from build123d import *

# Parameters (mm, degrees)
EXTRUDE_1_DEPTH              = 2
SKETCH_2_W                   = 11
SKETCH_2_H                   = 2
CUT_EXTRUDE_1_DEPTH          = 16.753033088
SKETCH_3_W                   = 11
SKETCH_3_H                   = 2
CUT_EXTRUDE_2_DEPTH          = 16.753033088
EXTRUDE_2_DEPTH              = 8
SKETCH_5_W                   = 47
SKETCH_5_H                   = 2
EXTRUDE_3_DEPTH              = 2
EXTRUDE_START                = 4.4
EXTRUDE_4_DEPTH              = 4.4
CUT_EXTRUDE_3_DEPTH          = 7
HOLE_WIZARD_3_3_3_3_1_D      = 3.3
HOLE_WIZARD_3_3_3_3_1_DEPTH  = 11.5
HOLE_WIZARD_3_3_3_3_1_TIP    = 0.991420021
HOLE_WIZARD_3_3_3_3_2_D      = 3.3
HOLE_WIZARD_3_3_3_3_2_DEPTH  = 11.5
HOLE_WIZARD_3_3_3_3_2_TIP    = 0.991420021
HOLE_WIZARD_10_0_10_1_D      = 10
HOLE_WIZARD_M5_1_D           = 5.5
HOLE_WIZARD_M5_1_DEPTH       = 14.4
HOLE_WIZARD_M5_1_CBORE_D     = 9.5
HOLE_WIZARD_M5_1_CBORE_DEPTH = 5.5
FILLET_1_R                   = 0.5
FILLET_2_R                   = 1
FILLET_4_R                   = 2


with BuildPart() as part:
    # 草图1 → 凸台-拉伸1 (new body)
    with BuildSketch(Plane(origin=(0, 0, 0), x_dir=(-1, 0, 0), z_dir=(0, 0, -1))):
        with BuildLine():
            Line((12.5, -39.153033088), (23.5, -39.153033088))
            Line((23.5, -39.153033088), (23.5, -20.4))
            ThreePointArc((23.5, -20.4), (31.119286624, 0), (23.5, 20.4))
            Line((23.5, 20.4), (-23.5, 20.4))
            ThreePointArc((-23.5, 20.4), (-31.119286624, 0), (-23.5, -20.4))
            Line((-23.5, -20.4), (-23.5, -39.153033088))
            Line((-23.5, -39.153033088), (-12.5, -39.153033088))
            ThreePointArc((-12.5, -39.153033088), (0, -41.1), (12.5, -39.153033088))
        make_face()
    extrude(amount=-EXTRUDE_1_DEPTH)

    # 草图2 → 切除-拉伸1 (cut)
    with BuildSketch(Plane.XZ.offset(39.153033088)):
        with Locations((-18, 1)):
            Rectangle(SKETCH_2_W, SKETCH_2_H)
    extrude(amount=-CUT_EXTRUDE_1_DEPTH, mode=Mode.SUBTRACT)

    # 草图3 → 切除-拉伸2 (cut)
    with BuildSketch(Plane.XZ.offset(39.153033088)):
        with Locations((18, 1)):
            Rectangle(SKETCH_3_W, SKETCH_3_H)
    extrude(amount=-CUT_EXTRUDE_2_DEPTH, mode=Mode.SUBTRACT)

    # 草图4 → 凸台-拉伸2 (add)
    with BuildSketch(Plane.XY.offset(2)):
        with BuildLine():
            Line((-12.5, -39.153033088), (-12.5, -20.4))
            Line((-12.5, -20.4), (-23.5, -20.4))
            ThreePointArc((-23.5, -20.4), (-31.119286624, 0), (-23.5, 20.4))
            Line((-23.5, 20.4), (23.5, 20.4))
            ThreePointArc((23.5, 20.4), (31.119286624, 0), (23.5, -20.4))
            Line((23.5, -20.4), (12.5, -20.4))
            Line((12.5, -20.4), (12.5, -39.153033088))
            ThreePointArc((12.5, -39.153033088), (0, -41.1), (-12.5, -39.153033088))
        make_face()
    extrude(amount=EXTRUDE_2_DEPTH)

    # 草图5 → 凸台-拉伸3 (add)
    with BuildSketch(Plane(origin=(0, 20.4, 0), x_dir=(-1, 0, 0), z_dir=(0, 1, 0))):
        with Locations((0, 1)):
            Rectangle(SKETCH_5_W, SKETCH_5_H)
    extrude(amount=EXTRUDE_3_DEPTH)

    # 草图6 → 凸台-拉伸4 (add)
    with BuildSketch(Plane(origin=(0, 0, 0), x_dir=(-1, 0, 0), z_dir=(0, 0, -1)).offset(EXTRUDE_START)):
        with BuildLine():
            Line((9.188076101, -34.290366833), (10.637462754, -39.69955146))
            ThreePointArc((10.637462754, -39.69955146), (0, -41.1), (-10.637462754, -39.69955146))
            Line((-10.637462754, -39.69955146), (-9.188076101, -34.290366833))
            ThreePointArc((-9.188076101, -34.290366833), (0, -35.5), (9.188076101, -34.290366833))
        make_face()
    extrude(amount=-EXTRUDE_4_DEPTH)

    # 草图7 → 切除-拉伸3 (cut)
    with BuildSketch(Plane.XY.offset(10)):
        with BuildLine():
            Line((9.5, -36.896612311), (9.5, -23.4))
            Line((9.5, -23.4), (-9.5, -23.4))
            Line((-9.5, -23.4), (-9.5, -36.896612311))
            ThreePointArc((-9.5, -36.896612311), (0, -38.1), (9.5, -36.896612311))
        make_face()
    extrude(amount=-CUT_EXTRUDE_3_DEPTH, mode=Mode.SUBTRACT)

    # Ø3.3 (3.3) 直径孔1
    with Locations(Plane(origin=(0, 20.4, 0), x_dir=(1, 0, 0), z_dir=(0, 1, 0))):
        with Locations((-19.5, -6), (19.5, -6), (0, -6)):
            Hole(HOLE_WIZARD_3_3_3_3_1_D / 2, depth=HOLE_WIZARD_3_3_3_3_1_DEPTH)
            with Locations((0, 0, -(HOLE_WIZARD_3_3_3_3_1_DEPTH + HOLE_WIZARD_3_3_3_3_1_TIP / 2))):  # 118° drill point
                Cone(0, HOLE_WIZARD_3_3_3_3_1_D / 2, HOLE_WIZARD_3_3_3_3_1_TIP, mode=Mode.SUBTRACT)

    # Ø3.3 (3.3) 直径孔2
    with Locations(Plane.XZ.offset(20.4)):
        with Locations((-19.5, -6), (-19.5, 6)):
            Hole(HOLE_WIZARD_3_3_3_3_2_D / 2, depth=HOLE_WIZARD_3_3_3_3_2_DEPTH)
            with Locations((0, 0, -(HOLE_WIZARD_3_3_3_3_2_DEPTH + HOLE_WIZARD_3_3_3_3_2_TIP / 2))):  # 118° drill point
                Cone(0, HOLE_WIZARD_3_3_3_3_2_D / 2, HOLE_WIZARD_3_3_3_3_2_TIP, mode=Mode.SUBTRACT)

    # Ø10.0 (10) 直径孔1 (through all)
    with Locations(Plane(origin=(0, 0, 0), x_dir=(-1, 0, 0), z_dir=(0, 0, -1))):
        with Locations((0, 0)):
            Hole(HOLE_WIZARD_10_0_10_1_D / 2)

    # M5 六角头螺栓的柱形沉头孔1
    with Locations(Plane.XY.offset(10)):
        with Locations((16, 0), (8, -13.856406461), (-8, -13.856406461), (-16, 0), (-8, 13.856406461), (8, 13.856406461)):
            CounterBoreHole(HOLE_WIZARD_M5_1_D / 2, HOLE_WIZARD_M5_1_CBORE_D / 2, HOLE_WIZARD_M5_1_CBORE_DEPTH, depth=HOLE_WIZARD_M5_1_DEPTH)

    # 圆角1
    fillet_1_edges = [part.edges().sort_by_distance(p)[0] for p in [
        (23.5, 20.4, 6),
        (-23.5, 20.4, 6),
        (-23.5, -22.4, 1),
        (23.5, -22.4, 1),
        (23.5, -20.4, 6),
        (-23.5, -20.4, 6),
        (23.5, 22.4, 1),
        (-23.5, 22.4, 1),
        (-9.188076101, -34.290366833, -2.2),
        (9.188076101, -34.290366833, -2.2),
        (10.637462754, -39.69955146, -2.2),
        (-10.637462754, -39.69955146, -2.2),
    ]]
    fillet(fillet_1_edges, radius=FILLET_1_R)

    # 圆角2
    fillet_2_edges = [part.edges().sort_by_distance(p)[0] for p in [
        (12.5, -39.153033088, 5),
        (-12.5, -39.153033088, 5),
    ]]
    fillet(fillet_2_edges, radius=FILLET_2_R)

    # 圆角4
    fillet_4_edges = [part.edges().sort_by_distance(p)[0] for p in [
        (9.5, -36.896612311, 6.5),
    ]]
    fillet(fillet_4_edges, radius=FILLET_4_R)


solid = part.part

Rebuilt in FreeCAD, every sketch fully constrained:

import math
import FreeCAD as App
import Part
import Sketcher
Q = App.Units.Quantity


def edges_at(feature, points):
    """Names of the edges that pass closest to the given points."""
    edges = feature.Shape.Edges
    near = lambda p: min(range(len(edges)), key=lambda i: edges[i].distToShape(Part.Vertex(*p))[0])
    return sorted({f"Edge{near(p) + 1}" for p in points})


def add_polygon(sketch, points):
    """Adds a closed chain of lines whose ends are joined by coincident constraints."""
    first, n = sketch.GeometryCount, len(points)
    for a, b in zip(points, points[1:] + points[:1]):
        sketch.addGeometry(Part.LineSegment(App.Vector(*a, 0), App.Vector(*b, 0)), False)
    for i in range(n):
        sketch.addConstraint(Sketcher.Constraint("Coincident", first + i, 2, first + (i + 1) % n, 1))

doc = App.newDocument("Part")
body = doc.addObject("PartDesign::Body", "Body")

# Sketch on XY plane
sketch1 = body.newObject("Sketcher::SketchObject", "Sketch")
sketch1.AttachmentSupport = (doc.getObject("XY_Plane"), [""])
sketch1.MapMode = "FlatFace"
sketch1.addGeometry(Part.LineSegment(App.Vector(-12.5, -39.153033, 0), App.Vector(-23.5, -39.153033, 0)), False)
sketch1.addGeometry(Part.LineSegment(App.Vector(-23.5, -39.153033, 0), App.Vector(-23.5, -20.4, 0)), False)
sketch1.addGeometry(Part.ArcOfCircle(Part.Circle(App.Vector(0, 0, 0), App.Vector(0, 0, 1), 31.119287), math.radians(139.039238), math.radians(220.960762)), False)
sketch1.addGeometry(Part.LineSegment(App.Vector(-23.5, 20.4, 0), App.Vector(23.5, 20.4, 0)), False)
sketch1.addGeometry(Part.ArcOfCircle(Part.Circle(App.Vector(0, 0, 0), App.Vector(0, 0, 1), 31.119287), math.radians(-40.960762), math.radians(40.960762)), False)
sketch1.addGeometry(Part.LineSegment(App.Vector(23.5, -20.4, 0), App.Vector(23.5, -39.153033, 0)), False)
sketch1.addGeometry(Part.LineSegment(App.Vector(23.5, -39.153033, 0), App.Vector(12.5, -39.153033, 0)), False)
sketch1.addGeometry(Part.ArcOfCircle(Part.Circle(App.Vector(0, 0, 0), App.Vector(0, 0, 1), 41.1), math.radians(-107.706206), math.radians(-72.293794)), False)
sketch1.addConstraint(Sketcher.Constraint("Coincident", 0, 2, 1, 1))
sketch1.addConstraint(Sketcher.Constraint("Coincident", 1, 2, 2, 2))
sketch1.addConstraint(Sketcher.Constraint("Coincident", 2, 1, 3, 1))
sketch1.addConstraint(Sketcher.Constraint("Coincident", 3, 2, 4, 2))
sketch1.addConstraint(Sketcher.Constraint("Coincident", 4, 1, 5, 1))
sketch1.addConstraint(Sketcher.Constraint("Coincident", 5, 2, 6, 1))
sketch1.addConstraint(Sketcher.Constraint("Coincident", 6, 2, 7, 2))
sketch1.addConstraint(Sketcher.Constraint("Coincident", 7, 1, 0, 1))
sketch1.addConstraint(Sketcher.Constraint("Horizontal", 0))
sketch1.addConstraint(Sketcher.Constraint("Vertical", 1))
sketch1.addConstraint(Sketcher.Constraint("Horizontal", 3))
sketch1.addConstraint(Sketcher.Constraint("Vertical", 5))
sketch1.addConstraint(Sketcher.Constraint("Horizontal", 6))
sketch1.addConstraint(Sketcher.Constraint("Coincident", 2, 3, -1, 1))
sketch1.addConstraint(Sketcher.Constraint("Coincident", 4, 3, -1, 1))
sketch1.addConstraint(Sketcher.Constraint("Coincident", 7, 3, -1, 1))
sketch1.addConstraint(Sketcher.Constraint("Equal", 2, 4))
sketch1.addConstraint(Sketcher.Constraint("Symmetric", 0, 2, 5, 2, -2))
sketch1.addConstraint(Sketcher.Constraint("Vertical", 1, 2, 2, 1))
sketch1.addConstraint(Sketcher.Constraint("Radius", 7, Q("41.1 mm")))
sketch1.addConstraint(Sketcher.Constraint("DistanceX", 0, 2, 0, 1, Q("11 mm")))
sketch1.addConstraint(Sketcher.Constraint("DistanceX", 3, 1, 3, 2, Q("47 mm")))
sketch1.addConstraint(Sketcher.Constraint("DistanceY", 1, 2, -1, 1, Q("20.4 mm")))
pad1 = body.newObject("PartDesign::Pad", "Pad")
pad1.Profile = sketch1
pad1.Length = 2

# Sketch on XZ plane
sketch2 = body.newObject("Sketcher::SketchObject", "Sketch001")
sketch2.AttachmentSupport = (doc.getObject("XZ_Plane"), [""])
sketch2.MapMode = "FlatFace"
sketch2.AttachmentOffset = App.Placement(App.Vector(0, 0, 39.153033), App.Rotation())
add_polygon(sketch2, [(-23.5, 2), (-23.5, 0), (-12.5, 0), (-12.5, 2)])  # lines 0-3
sketch2.addConstraint(Sketcher.Constraint("Vertical", 0))
sketch2.addConstraint(Sketcher.Constraint("Horizontal", 1))
sketch2.addConstraint(Sketcher.Constraint("Vertical", 2))
sketch2.addConstraint(Sketcher.Constraint("Horizontal", 3))
sketch2.addConstraint(Sketcher.Constraint("PointOnObject", 0, 2, -1))
sketch2.addConstraint(Sketcher.Constraint("DistanceX", 1, 1, 1, 2, Q("11 mm")))
sketch2.addConstraint(Sketcher.Constraint("DistanceY", 0, 2, 0, 1, Q("2 mm")))
sketch2.addConstraint(Sketcher.Constraint("DistanceX", 0, 2, -1, 1, Q("23.5 mm")))
pocket1 = body.newObject("PartDesign::Pocket", "Pocket")
pocket1.Profile = sketch2
pocket1.Length = 16.753033

# Sketch on XZ plane
sketch3 = body.newObject("Sketcher::SketchObject", "Sketch002")
sketch3.AttachmentSupport = (doc.getObject("XZ_Plane"), [""])
sketch3.MapMode = "FlatFace"
sketch3.AttachmentOffset = App.Placement(App.Vector(0, 0, 39.153033), App.Rotation())
add_polygon(sketch3, [(12.5, 2), (12.5, 0), (23.5, 0), (23.5, 2)])  # lines 0-3
sketch3.addConstraint(Sketcher.Constraint("Vertical", 0))
sketch3.addConstraint(Sketcher.Constraint("Horizontal", 1))
sketch3.addConstraint(Sketcher.Constraint("Vertical", 2))
sketch3.addConstraint(Sketcher.Constraint("Horizontal", 3))
sketch3.addConstraint(Sketcher.Constraint("PointOnObject", 0, 2, -1))
sketch3.addConstraint(Sketcher.Constraint("DistanceX", 1, 1, 1, 2, Q("11 mm")))
sketch3.addConstraint(Sketcher.Constraint("DistanceY", 0, 2, 0, 1, Q("2 mm")))
sketch3.addConstraint(Sketcher.Constraint("DistanceX", -1, 1, 0, 2, Q("12.5 mm")))
pocket2 = body.newObject("PartDesign::Pocket", "Pocket001")
pocket2.Profile = sketch3
pocket2.Length = 16.753033

# Sketch on XY plane
sketch4 = body.newObject("Sketcher::SketchObject", "Sketch003")
sketch4.AttachmentSupport = (doc.getObject("XY_Plane"), [""])
sketch4.MapMode = "FlatFace"
sketch4.AttachmentOffset = App.Placement(App.Vector(0, 0, 2), App.Rotation())
sketch4.addGeometry(Part.LineSegment(App.Vector(-12.5, -20.4, 0), App.Vector(-12.5, -39.153033, 0)), False)
sketch4.addGeometry(Part.ArcOfCircle(Part.Circle(App.Vector(0, 0, 0), App.Vector(0, 0, 1), 41.1), math.radians(-107.706206), math.radians(-72.293794)), False)
sketch4.addGeometry(Part.LineSegment(App.Vector(12.5, -39.153033, 0), App.Vector(12.5, -20.4, 0)), False)
sketch4.addGeometry(Part.LineSegment(App.Vector(12.5, -20.4, 0), App.Vector(23.5, -20.4, 0)), False)
sketch4.addGeometry(Part.ArcOfCircle(Part.Circle(App.Vector(0, 0, 0), App.Vector(0, 0, 1), 31.119287), math.radians(-40.960762), math.radians(40.960762)), False)
sketch4.addGeometry(Part.LineSegment(App.Vector(23.5, 20.4, 0), App.Vector(-23.5, 20.4, 0)), False)
sketch4.addGeometry(Part.ArcOfCircle(Part.Circle(App.Vector(0, 0, 0), App.Vector(0, 0, 1), 31.119287), math.radians(139.039238), math.radians(220.960762)), False)
sketch4.addGeometry(Part.LineSegment(App.Vector(-23.5, -20.4, 0), App.Vector(-12.5, -20.4, 0)), False)
sketch4.addConstraint(Sketcher.Constraint("Coincident", 0, 2, 1, 1))
sketch4.addConstraint(Sketcher.Constraint("Coincident", 1, 2, 2, 1))
sketch4.addConstraint(Sketcher.Constraint("Coincident", 2, 2, 3, 1))
sketch4.addConstraint(Sketcher.Constraint("Coincident", 3, 2, 4, 1))
sketch4.addConstraint(Sketcher.Constraint("Coincident", 4, 2, 5, 1))
sketch4.addConstraint(Sketcher.Constraint("Coincident", 5, 2, 6, 1))
sketch4.addConstraint(Sketcher.Constraint("Coincident", 6, 2, 7, 1))
sketch4.addConstraint(Sketcher.Constraint("Coincident", 7, 2, 0, 1))
sketch4.addConstraint(Sketcher.Constraint("Vertical", 0))
sketch4.addConstraint(Sketcher.Constraint("Vertical", 2))
sketch4.addConstraint(Sketcher.Constraint("Horizontal", 3))
sketch4.addConstraint(Sketcher.Constraint("Horizontal", 5))
sketch4.addConstraint(Sketcher.Constraint("Horizontal", 7))
sketch4.addConstraint(Sketcher.Constraint("Coincident", 1, 3, -1, 1))
sketch4.addConstraint(Sketcher.Constraint("Coincident", 4, 3, -1, 1))
sketch4.addConstraint(Sketcher.Constraint("Coincident", 6, 3, -1, 1))
sketch4.addConstraint(Sketcher.Constraint("Equal", 4, 6))
sketch4.addConstraint(Sketcher.Constraint("Symmetric", 2, 2, 7, 2, -2))
sketch4.addConstraint(Sketcher.Constraint("Vertical", 3, 2, 4, 2))
sketch4.addConstraint(Sketcher.Constraint("Radius", 1, Q("41.1 mm")))
sketch4.addConstraint(Sketcher.Constraint("DistanceX", 3, 1, 3, 2, Q("11 mm")))
sketch4.addConstraint(Sketcher.Constraint("DistanceX", 5, 2, 5, 1, Q("47 mm")))
sketch4.addConstraint(Sketcher.Constraint("DistanceY", 2, 2, -1, 1, Q("20.4 mm")))
pad2 = body.newObject("PartDesign::Pad", "Pad001")
pad2.Profile = sketch4
pad2.Length = 8

# Sketch on XZ plane
sketch5 = body.newObject("Sketcher::SketchObject", "Sketch004")
sketch5.AttachmentSupport = (doc.getObject("XZ_Plane"), [""])
sketch5.MapMode = "FlatFace"
sketch5.AttachmentOffset = App.Placement(App.Vector(0, 0, -20.4), App.Rotation())
add_polygon(sketch5, [(23.5, 2), (23.5, 0), (-23.5, 0), (-23.5, 2)])  # lines 0-3
sketch5.addConstraint(Sketcher.Constraint("Vertical", 0))
sketch5.addConstraint(Sketcher.Constraint("Horizontal", 1))
sketch5.addConstraint(Sketcher.Constraint("Vertical", 2))
sketch5.addConstraint(Sketcher.Constraint("Horizontal", 3))
sketch5.addConstraint(Sketcher.Constraint("Symmetric", 0, 2, 1, 2, -1, 1))
sketch5.addConstraint(Sketcher.Constraint("DistanceX", 1, 2, 1, 1, Q("47 mm")))
sketch5.addConstraint(Sketcher.Constraint("DistanceY", 0, 2, 0, 1, Q("2 mm")))
pad3 = body.newObject("PartDesign::Pad", "Pad002")
pad3.Profile = sketch5
pad3.Length = 2
pad3.Reversed = True

# Sketch on XY plane
sketch6 = body.newObject("Sketcher::SketchObject", "Sketch005")
sketch6.AttachmentSupport = (doc.getObject("XY_Plane"), [""])
sketch6.MapMode = "FlatFace"
sketch6.AttachmentOffset = App.Placement(App.Vector(0, 0, -4.4), App.Rotation())
sketch6.addGeometry(Part.LineSegment(App.Vector(-10.637463, -39.699551, 0), App.Vector(-9.188076, -34.290367, 0)), False)
sketch6.addGeometry(Part.ArcOfCircle(Part.Circle(App.Vector(0, 0, 0), App.Vector(0, 0, 1), 35.5), math.radians(-105), math.radians(-75)), False)
sketch6.addGeometry(Part.LineSegment(App.Vector(9.188076, -34.290367, 0), App.Vector(10.637463, -39.699551, 0)), False)
sketch6.addGeometry(Part.ArcOfCircle(Part.Circle(App.Vector(0, 0, 0), App.Vector(0, 0, 1), 41.1), math.radians(-105), math.radians(-75)), False)
sketch6.addConstraint(Sketcher.Constraint("Coincident", 0, 2, 1, 1))
sketch6.addConstraint(Sketcher.Constraint("Coincident", 1, 2, 2, 1))
sketch6.addConstraint(Sketcher.Constraint("Coincident", 2, 2, 3, 2))
sketch6.addConstraint(Sketcher.Constraint("Coincident", 3, 1, 0, 1))
sketch6.addConstraint(Sketcher.Constraint("Coincident", 1, 3, -1, 1))
sketch6.addConstraint(Sketcher.Constraint("Coincident", 3, 3, -1, 1))
sketch6.addConstraint(Sketcher.Constraint("Horizontal", 0, 2, 1, 2))
sketch6.addConstraint(Sketcher.Constraint("Horizontal", 2, 2, 3, 1))
sketch6.addConstraint(Sketcher.Constraint("Radius", 1, Q("35.5 mm")))
sketch6.addConstraint(Sketcher.Constraint("Radius", 3, Q("41.1 mm")))
sketch6.addConstraint(Sketcher.Constraint("Angle", 0, Q("75 deg")))
sketch6.addConstraint(Sketcher.Constraint("DistanceY", 2, 2, -1, 1, Q("39.699551 mm")))
pad4 = body.newObject("PartDesign::Pad", "Pad003")
pad4.Profile = sketch6
pad4.Length = 4.4

# Sketch on XY plane
sketch7 = body.newObject("Sketcher::SketchObject", "Sketch006")
sketch7.AttachmentSupport = (doc.getObject("XY_Plane"), [""])
sketch7.MapMode = "FlatFace"
sketch7.AttachmentOffset = App.Placement(App.Vector(0, 0, 10), App.Rotation())
sketch7.addGeometry(Part.LineSegment(App.Vector(9.5, -36.896612, 0), App.Vector(9.5, -23.4, 0)), False)
sketch7.addGeometry(Part.LineSegment(App.Vector(9.5, -23.4, 0), App.Vector(-9.5, -23.4, 0)), False)
sketch7.addGeometry(Part.LineSegment(App.Vector(-9.5, -23.4, 0), App.Vector(-9.5, -36.896612, 0)), False)
sketch7.addGeometry(Part.ArcOfCircle(Part.Circle(App.Vector(0, 0, 0), App.Vector(0, 0, 1), 38.1), math.radians(-104.438687), math.radians(-75.561313)), False)
sketch7.addConstraint(Sketcher.Constraint("Coincident", 0, 2, 1, 1))
sketch7.addConstraint(Sketcher.Constraint("Coincident", 1, 2, 2, 1))
sketch7.addConstraint(Sketcher.Constraint("Coincident", 2, 2, 3, 1))
sketch7.addConstraint(Sketcher.Constraint("Coincident", 3, 2, 0, 1))
sketch7.addConstraint(Sketcher.Constraint("Vertical", 0))
sketch7.addConstraint(Sketcher.Constraint("Horizontal", 1))
sketch7.addConstraint(Sketcher.Constraint("Vertical", 2))
sketch7.addConstraint(Sketcher.Constraint("Coincident", 3, 3, -1, 1))
sketch7.addConstraint(Sketcher.Constraint("Horizontal", 2, 2, 3, 2))
sketch7.addConstraint(Sketcher.Constraint("Radius", 3, Q("38.1 mm")))
sketch7.addConstraint(Sketcher.Constraint("DistanceX", 1, 2, 1, 1, Q("19 mm")))
sketch7.addConstraint(Sketcher.Constraint("DistanceY", 0, 2, -1, 1, Q("23.4 mm")))
pocket3 = body.newObject("PartDesign::Pocket", "Pocket002")
pocket3.Profile = sketch7
pocket3.Length = 7

# Sketch on XZ plane
sketch8 = body.newObject("Sketcher::SketchObject", "Sketch007")
sketch8.AttachmentSupport = (doc.getObject("XZ_Plane"), [""])
sketch8.MapMode = "FlatFace"
sketch8.AttachmentOffset = App.Placement(App.Vector(0, 0, -20.4), App.Rotation())
sketch8.addGeometry(Part.Circle(App.Vector(-19.5, 6, 0), App.Vector(0, 0, 1), 1.65), False)
sketch8.addGeometry(Part.Circle(App.Vector(19.5, 6, 0), App.Vector(0, 0, 1), 1.65), False)
sketch8.addGeometry(Part.Circle(App.Vector(0, 6, 0), App.Vector(0, 0, 1), 1.65), False)
sketch8.addConstraint(Sketcher.Constraint("Equal", 0, 1))
sketch8.addConstraint(Sketcher.Constraint("Equal", 1, 2))
sketch8.addConstraint(Sketcher.Constraint("Symmetric", 0, 3, 1, 3, -2))
sketch8.addConstraint(Sketcher.Constraint("PointOnObject", 2, 3, -2))
sketch8.addConstraint(Sketcher.Constraint("Horizontal", 1, 3, 2, 3))
sketch8.addConstraint(Sketcher.Constraint("Diameter", 0, Q("3.3 mm")))
sketch8.addConstraint(Sketcher.Constraint("DistanceY", -1, 1, 0, 3, Q("6 mm")))
sketch8.addConstraint(Sketcher.Constraint("DistanceX", 0, 3, 1, 3, Q("39 mm")))
doc.recompute()
hole = body.newObject("PartDesign::Hole", "Hole")
hole.Profile = sketch8
hole.ThreadType = "None"
hole.Diameter = 3.3
hole.DepthType = "Dimension"
hole.Depth = 11.5
hole.DrillPoint = "Angled"
hole.DrillPointAngle = 118
hole.Reversed = True

# Sketch on XZ plane
sketch9 = body.newObject("Sketcher::SketchObject", "Sketch008")
sketch9.AttachmentSupport = (doc.getObject("XZ_Plane"), [""])
sketch9.MapMode = "FlatFace"
sketch9.AttachmentOffset = App.Placement(App.Vector(0, 0, 20.4), App.Rotation())
sketch9.addGeometry(Part.Circle(App.Vector(-19.5, -6, 0), App.Vector(0, 0, 1), 1.65), False)
sketch9.addGeometry(Part.Circle(App.Vector(-19.5, 6, 0), App.Vector(0, 0, 1), 1.65), False)
sketch9.addConstraint(Sketcher.Constraint("Equal", 0, 1))
sketch9.addConstraint(Sketcher.Constraint("Symmetric", 0, 3, 1, 3, -1))
sketch9.addConstraint(Sketcher.Constraint("Diameter", 0, Q("3.3 mm")))
sketch9.addConstraint(Sketcher.Constraint("DistanceY", 0, 3, -1, 1, Q("6 mm")))
sketch9.addConstraint(Sketcher.Constraint("DistanceX", 0, 3, -1, 1, Q("19.5 mm")))
doc.recompute()
hole2 = body.newObject("PartDesign::Hole", "Hole001")
hole2.Profile = sketch9
hole2.ThreadType = "None"
hole2.Diameter = 3.3
hole2.DepthType = "Dimension"
hole2.Depth = 11.5
hole2.DrillPoint = "Angled"
hole2.DrillPointAngle = 118

# Sketch on XY plane
sketch10 = body.newObject("Sketcher::SketchObject", "Sketch009")
sketch10.AttachmentSupport = (doc.getObject("XY_Plane"), [""])
sketch10.MapMode = "FlatFace"
sketch10.addGeometry(Part.Circle(App.Vector(0, 0, 0), App.Vector(0, 0, 1), 5), False)
sketch10.addConstraint(Sketcher.Constraint("Coincident", 0, 3, -1, 1))
sketch10.addConstraint(Sketcher.Constraint("Diameter", 0, Q("10 mm")))
doc.recompute()
hole3 = body.newObject("PartDesign::Hole", "Hole002")
hole3.Profile = sketch10
hole3.ThreadType = "None"
hole3.Diameter = 10
hole3.DepthType = "ThroughAll"
hole3.Reversed = True

# Sketch on XY plane
sketch11 = body.newObject("Sketcher::SketchObject", "Sketch010")
sketch11.AttachmentSupport = (doc.getObject("XY_Plane"), [""])
sketch11.MapMode = "FlatFace"
sketch11.AttachmentOffset = App.Placement(App.Vector(0, 0, 10), App.Rotation())
sketch11.addGeometry(Part.Circle(App.Vector(16, 0, 0), App.Vector(0, 0, 1), 2.75), False)
sketch11.addGeometry(Part.Circle(App.Vector(8, -13.856406, 0), App.Vector(0, 0, 1), 2.75), False)
sketch11.addGeometry(Part.Circle(App.Vector(-8, -13.856406, 0), App.Vector(0, 0, 1), 2.75), False)
sketch11.addGeometry(Part.Circle(App.Vector(-16, 0, 0), App.Vector(0, 0, 1), 2.75), False)
sketch11.addGeometry(Part.Circle(App.Vector(-8, 13.856406, 0), App.Vector(0, 0, 1), 2.75), False)
sketch11.addGeometry(Part.Circle(App.Vector(8, 13.856406, 0), App.Vector(0, 0, 1), 2.75), False)
sketch11.addConstraint(Sketcher.Constraint("Equal", 0, 1))
sketch11.addConstraint(Sketcher.Constraint("Equal", 1, 2))
sketch11.addConstraint(Sketcher.Constraint("Equal", 2, 3))
sketch11.addConstraint(Sketcher.Constraint("Equal", 3, 4))
sketch11.addConstraint(Sketcher.Constraint("Equal", 4, 5))
sketch11.addConstraint(Sketcher.Constraint("Symmetric", 0, 3, 3, 3, -1, 1))
sketch11.addConstraint(Sketcher.Constraint("Symmetric", 1, 3, 4, 3, -1, 1))
sketch11.addConstraint(Sketcher.Constraint("Symmetric", 2, 3, 5, 3, -1, 1))
sketch11.addConstraint(Sketcher.Constraint("Symmetric", 1, 3, 2, 3, -2))
sketch11.addConstraint(Sketcher.Constraint("PointOnObject", 0, 3, -1))
sketch11.addConstraint(Sketcher.Constraint("Diameter", 0, Q("5.5 mm")))
sketch11.addConstraint(Sketcher.Constraint("DistanceX", -1, 1, 0, 3, Q("16 mm")))
sketch11.addConstraint(Sketcher.Constraint("DistanceX", -1, 1, 1, 3, Q("8 mm")))
sketch11.addConstraint(Sketcher.Constraint("DistanceY", 1, 3, -1, 1, Q("13.856406 mm")))
doc.recompute()
hole4 = body.newObject("PartDesign::Hole", "Hole003")
hole4.Profile = sketch11
hole4.ThreadType = "None"
hole4.Diameter = 5.5
hole4.DepthType = "Dimension"
hole4.Depth = 14.4
hole4.DrillPoint = "Flat"
hole4.HoleCutType = "Counterbore"
hole4.HoleCutDiameter = 9.5
hole4.HoleCutDepth = 5.5
doc.recompute()

fillet = body.newObject("PartDesign::Fillet", "Fillet")
fillet.Base = (hole4, edges_at(hole4, [
    (23.5, 20.4, 6),
    (-23.5, 20.4, 6),
    (-23.5, -22.4, 1),
    (23.5, -22.4, 1),
    (23.5, -20.4, 6),
    (-23.5, -20.4, 6),
    (23.5, 22.4, 1),
    (-23.5, 22.4, 1),
    (-9.188, -34.29, -2.2),
    (9.188, -34.29, -2.2),
    (10.637, -39.7, -2.2),
    (-10.637, -39.7, -2.2),
]))
fillet.Radius = 0.5
doc.recompute()

fillet2 = body.newObject("PartDesign::Fillet", "Fillet001")
fillet2.Base = (fillet, edges_at(fillet, [(12.5, -39.153, 5), (-12.5, -39.153, 5)]))
fillet2.Radius = 1
doc.recompute()

fillet3 = body.newObject("PartDesign::Fillet", "Fillet002")
fillet3.Base = (fillet2, edges_at(fillet2, [(9.5, -36.897, 6.5)]))
fillet3.Radius = 2

doc.recompute()
